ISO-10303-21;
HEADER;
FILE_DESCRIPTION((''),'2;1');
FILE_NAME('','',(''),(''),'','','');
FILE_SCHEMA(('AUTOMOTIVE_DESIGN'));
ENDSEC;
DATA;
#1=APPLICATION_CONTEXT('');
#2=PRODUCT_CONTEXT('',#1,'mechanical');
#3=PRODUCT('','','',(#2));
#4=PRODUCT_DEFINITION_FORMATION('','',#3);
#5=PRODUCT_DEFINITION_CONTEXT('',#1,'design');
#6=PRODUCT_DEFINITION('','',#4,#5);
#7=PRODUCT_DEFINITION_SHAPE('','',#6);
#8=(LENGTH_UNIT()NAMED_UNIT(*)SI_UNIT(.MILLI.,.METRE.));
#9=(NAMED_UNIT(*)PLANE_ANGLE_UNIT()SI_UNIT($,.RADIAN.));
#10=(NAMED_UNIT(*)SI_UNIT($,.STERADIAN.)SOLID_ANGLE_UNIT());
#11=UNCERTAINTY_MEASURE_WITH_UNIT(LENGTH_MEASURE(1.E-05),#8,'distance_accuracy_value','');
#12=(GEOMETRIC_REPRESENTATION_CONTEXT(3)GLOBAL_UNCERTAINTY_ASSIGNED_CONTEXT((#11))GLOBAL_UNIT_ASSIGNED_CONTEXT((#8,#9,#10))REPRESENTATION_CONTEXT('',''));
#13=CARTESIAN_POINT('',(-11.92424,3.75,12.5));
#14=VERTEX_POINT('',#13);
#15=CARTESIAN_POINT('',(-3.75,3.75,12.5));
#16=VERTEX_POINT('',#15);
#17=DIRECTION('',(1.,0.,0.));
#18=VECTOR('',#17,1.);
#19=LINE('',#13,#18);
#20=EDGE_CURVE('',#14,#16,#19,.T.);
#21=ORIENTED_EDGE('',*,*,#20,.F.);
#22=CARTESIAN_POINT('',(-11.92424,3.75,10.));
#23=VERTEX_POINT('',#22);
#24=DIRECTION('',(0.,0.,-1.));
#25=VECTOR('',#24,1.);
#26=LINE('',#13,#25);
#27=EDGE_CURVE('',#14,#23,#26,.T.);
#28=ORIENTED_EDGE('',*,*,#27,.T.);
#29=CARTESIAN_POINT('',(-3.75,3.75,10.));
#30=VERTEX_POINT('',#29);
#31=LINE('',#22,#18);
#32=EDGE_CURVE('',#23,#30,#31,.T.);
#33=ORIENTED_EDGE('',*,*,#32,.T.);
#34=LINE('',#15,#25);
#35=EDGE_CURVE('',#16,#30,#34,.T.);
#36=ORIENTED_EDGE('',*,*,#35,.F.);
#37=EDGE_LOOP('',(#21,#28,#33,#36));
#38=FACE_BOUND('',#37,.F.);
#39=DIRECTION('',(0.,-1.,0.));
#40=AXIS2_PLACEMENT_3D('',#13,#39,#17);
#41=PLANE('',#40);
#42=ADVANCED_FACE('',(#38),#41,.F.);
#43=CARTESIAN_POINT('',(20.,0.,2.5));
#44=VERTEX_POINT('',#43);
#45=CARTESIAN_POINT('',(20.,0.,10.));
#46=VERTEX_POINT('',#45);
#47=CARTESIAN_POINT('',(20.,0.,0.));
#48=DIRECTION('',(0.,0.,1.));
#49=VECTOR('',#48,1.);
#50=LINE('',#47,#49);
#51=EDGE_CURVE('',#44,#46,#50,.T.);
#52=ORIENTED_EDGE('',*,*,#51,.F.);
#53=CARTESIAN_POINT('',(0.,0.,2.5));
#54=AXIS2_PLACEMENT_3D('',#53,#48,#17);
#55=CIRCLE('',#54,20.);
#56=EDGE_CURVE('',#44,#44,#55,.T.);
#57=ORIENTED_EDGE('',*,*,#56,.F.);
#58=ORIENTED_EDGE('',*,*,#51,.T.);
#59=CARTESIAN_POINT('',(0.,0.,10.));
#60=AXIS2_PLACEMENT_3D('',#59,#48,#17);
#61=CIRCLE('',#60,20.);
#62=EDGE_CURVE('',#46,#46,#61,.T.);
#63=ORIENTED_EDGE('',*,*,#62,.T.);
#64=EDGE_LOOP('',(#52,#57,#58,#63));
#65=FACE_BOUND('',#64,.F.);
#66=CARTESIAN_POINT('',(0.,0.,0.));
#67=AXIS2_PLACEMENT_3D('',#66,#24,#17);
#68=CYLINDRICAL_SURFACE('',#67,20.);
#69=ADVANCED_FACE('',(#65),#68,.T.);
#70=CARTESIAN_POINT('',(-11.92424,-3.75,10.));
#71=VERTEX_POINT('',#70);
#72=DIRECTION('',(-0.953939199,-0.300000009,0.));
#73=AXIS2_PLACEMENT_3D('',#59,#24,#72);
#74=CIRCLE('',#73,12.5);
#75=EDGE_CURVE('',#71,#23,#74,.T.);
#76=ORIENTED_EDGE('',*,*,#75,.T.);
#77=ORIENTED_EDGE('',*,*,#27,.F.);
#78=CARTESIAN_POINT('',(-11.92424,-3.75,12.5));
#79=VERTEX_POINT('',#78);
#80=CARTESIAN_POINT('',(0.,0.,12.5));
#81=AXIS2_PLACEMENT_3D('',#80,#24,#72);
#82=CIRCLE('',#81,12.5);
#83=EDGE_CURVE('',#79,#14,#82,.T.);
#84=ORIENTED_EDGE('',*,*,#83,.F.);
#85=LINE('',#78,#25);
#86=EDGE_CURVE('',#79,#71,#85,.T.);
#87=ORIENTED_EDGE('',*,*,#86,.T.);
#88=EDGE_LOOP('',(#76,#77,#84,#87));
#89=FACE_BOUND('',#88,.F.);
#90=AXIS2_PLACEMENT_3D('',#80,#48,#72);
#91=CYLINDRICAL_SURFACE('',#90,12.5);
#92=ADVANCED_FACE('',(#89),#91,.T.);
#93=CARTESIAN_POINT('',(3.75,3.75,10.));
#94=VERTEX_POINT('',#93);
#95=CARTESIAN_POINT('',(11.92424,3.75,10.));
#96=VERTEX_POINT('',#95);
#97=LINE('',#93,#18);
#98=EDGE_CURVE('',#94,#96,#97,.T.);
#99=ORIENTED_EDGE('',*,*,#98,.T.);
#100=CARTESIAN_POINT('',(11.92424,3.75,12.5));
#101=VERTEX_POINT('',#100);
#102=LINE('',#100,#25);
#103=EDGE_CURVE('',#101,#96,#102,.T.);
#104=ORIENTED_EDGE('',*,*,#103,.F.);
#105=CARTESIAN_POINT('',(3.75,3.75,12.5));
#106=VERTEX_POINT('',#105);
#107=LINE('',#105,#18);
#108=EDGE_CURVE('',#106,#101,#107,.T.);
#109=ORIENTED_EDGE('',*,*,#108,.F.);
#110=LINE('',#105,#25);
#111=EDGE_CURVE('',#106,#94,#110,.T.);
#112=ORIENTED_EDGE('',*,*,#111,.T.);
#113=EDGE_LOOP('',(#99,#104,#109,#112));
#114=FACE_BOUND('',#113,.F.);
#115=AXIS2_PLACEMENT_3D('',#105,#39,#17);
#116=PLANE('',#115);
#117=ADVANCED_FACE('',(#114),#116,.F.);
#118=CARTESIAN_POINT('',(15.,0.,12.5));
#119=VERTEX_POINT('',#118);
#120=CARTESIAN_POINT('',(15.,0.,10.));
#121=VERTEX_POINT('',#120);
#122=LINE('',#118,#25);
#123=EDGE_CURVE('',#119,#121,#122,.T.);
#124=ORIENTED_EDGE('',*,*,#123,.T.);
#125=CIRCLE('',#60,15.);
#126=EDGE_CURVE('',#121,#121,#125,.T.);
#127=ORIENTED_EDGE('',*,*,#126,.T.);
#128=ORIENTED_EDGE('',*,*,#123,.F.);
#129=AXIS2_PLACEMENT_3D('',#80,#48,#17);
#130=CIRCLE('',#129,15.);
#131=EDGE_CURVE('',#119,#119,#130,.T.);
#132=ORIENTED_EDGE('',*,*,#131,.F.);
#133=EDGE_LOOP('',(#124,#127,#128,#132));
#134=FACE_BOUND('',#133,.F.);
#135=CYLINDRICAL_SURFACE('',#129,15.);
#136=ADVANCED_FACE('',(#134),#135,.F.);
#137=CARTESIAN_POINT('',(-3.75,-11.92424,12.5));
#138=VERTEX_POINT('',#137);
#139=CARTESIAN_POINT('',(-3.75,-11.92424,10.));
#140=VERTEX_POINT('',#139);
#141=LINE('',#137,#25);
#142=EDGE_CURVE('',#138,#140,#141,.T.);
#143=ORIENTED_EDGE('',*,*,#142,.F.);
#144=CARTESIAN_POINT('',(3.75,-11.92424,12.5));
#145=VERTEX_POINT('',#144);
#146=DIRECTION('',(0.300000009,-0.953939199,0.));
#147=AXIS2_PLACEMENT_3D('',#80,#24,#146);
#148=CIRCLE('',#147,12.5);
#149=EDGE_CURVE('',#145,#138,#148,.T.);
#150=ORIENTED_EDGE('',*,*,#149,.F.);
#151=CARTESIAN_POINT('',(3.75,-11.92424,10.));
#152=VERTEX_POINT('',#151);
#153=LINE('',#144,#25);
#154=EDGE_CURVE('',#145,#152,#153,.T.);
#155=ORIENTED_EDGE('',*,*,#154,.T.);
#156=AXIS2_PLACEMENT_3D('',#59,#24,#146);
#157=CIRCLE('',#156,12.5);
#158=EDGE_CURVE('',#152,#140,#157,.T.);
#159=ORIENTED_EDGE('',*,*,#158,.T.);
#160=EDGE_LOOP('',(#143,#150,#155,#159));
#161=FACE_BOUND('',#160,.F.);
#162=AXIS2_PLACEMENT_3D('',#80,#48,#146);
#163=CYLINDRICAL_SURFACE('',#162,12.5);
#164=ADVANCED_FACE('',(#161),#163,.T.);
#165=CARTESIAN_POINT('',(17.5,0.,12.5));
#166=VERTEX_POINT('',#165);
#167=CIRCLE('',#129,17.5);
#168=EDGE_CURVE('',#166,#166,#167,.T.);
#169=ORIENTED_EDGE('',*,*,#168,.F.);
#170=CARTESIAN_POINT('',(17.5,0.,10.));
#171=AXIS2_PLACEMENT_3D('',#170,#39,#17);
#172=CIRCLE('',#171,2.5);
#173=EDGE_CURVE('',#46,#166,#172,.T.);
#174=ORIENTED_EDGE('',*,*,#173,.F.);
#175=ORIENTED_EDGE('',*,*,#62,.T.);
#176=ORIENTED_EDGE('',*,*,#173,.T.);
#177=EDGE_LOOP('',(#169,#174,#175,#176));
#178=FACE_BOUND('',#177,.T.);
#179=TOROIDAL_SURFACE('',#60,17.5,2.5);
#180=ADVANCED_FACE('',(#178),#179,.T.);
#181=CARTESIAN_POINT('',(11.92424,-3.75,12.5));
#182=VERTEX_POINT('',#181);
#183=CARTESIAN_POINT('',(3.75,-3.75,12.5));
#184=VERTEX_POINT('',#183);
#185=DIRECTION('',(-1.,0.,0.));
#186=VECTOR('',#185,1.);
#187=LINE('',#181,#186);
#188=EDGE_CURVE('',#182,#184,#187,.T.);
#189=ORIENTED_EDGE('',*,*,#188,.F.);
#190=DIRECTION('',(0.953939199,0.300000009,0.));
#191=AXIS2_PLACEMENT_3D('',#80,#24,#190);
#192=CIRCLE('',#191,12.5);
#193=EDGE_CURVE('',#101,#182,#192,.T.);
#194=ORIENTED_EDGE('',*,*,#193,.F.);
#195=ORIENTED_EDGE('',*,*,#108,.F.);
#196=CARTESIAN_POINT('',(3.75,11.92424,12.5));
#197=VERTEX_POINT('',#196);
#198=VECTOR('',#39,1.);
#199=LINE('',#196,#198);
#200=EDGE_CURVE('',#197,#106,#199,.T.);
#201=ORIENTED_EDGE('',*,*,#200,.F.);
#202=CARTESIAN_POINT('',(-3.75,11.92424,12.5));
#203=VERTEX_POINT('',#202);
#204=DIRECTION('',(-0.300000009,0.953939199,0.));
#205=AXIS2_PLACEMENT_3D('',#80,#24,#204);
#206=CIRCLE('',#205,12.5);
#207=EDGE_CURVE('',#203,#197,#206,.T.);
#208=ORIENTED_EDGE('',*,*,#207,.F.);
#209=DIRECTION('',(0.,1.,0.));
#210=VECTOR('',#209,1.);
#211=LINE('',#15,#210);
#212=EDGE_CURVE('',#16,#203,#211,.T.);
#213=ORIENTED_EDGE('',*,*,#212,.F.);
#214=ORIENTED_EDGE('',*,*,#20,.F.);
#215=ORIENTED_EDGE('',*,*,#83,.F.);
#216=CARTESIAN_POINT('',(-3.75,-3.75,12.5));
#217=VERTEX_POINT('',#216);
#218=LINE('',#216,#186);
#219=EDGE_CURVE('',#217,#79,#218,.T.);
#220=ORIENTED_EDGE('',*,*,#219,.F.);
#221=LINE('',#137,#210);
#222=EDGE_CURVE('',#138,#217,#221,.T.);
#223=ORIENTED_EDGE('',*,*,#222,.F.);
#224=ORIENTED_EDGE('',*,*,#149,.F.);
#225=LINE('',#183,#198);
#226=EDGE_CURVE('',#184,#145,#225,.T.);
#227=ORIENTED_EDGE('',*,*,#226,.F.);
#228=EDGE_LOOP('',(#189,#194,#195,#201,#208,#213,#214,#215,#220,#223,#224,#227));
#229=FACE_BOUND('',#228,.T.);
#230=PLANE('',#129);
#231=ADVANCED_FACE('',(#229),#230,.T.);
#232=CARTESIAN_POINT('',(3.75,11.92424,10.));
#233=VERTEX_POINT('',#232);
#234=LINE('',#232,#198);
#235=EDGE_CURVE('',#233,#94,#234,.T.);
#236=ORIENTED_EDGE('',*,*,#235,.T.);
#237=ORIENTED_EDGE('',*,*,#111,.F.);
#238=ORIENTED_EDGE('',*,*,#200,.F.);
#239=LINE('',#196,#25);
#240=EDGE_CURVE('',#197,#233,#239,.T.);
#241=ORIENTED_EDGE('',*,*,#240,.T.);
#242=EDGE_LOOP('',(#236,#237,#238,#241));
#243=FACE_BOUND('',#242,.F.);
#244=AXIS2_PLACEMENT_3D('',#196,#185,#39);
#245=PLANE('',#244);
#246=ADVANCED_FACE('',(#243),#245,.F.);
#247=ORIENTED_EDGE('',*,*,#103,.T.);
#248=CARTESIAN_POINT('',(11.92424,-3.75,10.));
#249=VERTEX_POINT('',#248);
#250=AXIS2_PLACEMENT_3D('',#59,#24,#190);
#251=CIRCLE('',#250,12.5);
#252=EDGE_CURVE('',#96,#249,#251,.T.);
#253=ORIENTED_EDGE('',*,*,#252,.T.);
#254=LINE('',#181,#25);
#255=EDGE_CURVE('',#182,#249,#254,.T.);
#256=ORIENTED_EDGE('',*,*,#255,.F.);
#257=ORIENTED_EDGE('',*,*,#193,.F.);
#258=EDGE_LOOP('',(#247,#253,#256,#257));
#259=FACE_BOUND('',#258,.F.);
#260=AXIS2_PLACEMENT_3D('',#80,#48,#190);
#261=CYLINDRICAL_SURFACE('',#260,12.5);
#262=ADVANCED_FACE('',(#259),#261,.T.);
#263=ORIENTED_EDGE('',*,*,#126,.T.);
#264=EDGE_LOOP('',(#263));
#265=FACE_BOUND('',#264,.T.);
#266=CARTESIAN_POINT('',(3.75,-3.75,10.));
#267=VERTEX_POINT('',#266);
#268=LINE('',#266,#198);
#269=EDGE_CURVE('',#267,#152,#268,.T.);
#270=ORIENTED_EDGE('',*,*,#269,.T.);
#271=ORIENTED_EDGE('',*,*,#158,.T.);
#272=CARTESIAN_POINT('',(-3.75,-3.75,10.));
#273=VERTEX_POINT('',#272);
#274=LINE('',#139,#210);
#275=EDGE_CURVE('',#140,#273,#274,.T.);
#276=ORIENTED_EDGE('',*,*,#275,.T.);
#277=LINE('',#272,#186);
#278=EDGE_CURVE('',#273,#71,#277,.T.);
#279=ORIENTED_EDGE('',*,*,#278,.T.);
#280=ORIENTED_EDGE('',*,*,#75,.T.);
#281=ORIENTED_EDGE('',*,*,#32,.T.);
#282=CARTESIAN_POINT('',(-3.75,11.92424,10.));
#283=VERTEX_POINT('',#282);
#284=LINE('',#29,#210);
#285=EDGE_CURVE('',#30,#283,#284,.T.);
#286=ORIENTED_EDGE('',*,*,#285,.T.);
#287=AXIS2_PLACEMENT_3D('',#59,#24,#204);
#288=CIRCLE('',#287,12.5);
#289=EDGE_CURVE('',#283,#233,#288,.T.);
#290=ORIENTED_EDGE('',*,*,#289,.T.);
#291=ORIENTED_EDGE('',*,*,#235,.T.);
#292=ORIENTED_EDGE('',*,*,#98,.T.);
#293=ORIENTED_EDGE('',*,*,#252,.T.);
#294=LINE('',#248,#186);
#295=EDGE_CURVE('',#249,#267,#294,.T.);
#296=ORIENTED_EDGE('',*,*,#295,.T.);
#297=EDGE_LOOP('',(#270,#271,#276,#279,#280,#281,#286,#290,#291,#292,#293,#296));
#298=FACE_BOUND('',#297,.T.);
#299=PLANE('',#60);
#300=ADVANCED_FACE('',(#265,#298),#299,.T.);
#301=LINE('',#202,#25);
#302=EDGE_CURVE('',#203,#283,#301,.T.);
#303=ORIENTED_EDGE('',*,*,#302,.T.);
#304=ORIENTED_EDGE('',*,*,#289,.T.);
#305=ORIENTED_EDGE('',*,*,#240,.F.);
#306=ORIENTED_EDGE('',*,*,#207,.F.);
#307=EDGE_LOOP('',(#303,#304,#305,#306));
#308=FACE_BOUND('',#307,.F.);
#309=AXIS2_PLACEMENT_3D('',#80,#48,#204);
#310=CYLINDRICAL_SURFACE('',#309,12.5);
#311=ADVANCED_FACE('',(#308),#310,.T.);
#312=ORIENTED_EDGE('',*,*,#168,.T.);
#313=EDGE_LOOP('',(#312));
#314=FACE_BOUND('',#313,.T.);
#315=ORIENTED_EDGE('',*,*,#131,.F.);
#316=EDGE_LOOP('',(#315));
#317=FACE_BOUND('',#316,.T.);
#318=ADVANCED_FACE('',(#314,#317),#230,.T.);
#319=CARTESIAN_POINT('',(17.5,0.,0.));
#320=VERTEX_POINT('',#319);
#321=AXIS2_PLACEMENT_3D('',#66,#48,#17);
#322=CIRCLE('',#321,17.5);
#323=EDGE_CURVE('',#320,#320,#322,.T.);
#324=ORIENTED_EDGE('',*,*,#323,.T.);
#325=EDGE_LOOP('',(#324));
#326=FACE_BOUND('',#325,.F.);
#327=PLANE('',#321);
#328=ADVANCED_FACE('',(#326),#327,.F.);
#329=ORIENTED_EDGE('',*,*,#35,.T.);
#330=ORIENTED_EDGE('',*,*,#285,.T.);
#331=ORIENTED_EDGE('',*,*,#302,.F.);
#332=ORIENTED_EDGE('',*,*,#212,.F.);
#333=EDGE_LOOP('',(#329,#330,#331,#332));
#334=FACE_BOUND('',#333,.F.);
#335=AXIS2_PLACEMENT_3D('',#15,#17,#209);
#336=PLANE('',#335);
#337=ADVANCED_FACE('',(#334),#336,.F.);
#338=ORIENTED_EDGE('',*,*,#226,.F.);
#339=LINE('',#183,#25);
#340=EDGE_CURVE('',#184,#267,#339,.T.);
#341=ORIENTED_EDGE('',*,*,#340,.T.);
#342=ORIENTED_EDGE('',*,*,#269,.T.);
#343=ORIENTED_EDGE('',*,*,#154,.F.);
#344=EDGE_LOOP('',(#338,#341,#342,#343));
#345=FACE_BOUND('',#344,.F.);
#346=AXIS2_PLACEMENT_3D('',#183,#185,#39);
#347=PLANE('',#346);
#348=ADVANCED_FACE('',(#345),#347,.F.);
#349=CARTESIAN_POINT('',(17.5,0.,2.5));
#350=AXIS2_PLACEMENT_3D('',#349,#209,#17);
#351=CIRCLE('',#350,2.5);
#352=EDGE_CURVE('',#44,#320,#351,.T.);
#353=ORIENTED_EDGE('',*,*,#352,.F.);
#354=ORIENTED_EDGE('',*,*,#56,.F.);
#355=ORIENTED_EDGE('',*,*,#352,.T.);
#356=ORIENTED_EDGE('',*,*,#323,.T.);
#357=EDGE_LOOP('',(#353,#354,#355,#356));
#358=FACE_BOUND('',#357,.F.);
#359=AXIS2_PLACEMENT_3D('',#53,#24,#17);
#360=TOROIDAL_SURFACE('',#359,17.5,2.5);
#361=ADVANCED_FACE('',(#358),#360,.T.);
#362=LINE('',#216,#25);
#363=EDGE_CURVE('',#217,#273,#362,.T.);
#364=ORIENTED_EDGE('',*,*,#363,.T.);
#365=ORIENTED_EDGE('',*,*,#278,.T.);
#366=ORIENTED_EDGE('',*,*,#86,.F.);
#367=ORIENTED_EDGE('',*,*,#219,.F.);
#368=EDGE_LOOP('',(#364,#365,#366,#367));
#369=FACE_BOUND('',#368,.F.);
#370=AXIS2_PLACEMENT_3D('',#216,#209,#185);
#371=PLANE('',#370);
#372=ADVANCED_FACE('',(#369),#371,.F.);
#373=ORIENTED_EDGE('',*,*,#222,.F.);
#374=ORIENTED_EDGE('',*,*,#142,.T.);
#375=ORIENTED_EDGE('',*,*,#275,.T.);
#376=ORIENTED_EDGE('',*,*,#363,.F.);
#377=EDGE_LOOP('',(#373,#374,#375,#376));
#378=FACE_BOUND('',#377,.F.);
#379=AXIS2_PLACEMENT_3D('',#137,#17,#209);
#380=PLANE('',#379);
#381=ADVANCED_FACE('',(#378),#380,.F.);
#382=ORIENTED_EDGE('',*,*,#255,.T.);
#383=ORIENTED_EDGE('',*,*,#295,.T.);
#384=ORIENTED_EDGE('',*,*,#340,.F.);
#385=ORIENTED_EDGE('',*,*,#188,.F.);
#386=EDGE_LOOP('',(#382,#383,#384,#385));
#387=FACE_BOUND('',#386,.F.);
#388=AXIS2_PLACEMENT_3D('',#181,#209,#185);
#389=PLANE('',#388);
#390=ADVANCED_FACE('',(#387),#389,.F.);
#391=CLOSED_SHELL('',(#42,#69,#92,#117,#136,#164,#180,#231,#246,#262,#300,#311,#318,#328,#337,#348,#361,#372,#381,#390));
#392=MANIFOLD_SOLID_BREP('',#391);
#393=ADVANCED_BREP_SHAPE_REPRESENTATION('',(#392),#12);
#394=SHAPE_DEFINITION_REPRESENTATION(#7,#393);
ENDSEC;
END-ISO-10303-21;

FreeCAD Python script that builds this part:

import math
import FreeCAD as App
import Part
import Sketcher
from FreeCAD import Vector
Q = App.Units.Quantity


def edges_at(feature, points):
    """Names of the edges that pass closest to the given points."""
    edges = feature.Shape.Edges
    near = lambda p: min(range(len(edges)), key=lambda i: edges[i].distToShape(Part.Vertex(*p))[0])
    return sorted({f"Edge{near(p) + 1}" for p in points})

doc = App.newDocument("Part")
body = doc.addObject("PartDesign::Body", "Body")

sketch1 = body.newObject("Sketcher::SketchObject", "Sketch")
sketch1.AttachmentSupport = (doc.getObject("XY_Plane"), [""])
sketch1.MapMode = "FlatFace"
sketch1.addGeometry(Part.Circle(Vector(0, 0, 0), Vector(0, 0, 1), 20), False)
sketch1.addConstraint(Sketcher.Constraint("Coincident", 0, 3, -1, 1))
sketch1.addConstraint(Sketcher.Constraint("Diameter", 0, Q("40 mm")))
pad1 = body.newObject("PartDesign::Pad", "Pad")
pad1.Profile = sketch1
pad1.Length = 12.5
doc.recompute()

fillet = body.newObject("PartDesign::Fillet", "Fillet")
fillet.Base = (pad1, edges_at(pad1, [(-20, 0, 12.5)]))
fillet.Radius = 2.5
doc.recompute()

fillet2 = body.newObject("PartDesign::Fillet", "Fillet001")
fillet2.Base = (fillet, edges_at(fillet, [(-20, 0, 0)]))
fillet2.Radius = 2.5

sketch2 = body.newObject("Sketcher::SketchObject", "Sketch001")
sketch2.AttachmentSupport = (doc.getObject("XY_Plane"), [""])
sketch2.MapMode = "FlatFace"
sketch2.AttachmentOffset = App.Placement(Vector(0, 0, 12.5), App.Rotation())
sketch2.addGeometry(Part.Circle(Vector(0, 0, 0), Vector(0, 0, 1), 15), False)
sketch2.addGeometry(Part.LineSegment(Vector(-12, 4, 0), Vector(-4, 4, 0)), False)
sketch2.addGeometry(Part.LineSegment(Vector(-4, 4, 0), Vector(-4, 12, 0)), False)
sketch2.addGeometry(Part.ArcOfCircle(Part.Circle(Vector(0, 0, 0), Vector(0, 0, 1), 12), math.radians(73), math.radians(107)), False)
sketch2.addGeometry(Part.LineSegment(Vector(4, 12, 0), Vector(4, 4, 0)), False)
sketch2.addGeometry(Part.LineSegment(Vector(4, 4, 0), Vector(12, 4, 0)), False)
sketch2.addGeometry(Part.ArcOfCircle(Part.Circle(Vector(0, 0, 0), Vector(0, 0, 1), 12), math.radians(-17), math.radians(17)), False)
sketch2.addGeometry(Part.LineSegment(Vector(12, -4, 0), Vector(4, -4, 0)), False)
sketch2.addGeometry(Part.LineSegment(Vector(4, -4, 0), Vector(4, -12, 0)), False)
sketch2.addGeometry(Part.ArcOfCircle(Part.Circle(Vector(0, 0, 0), Vector(0, 0, 1), 12), math.radians(-107), math.radians(-73)), False)
sketch2.addGeometry(Part.LineSegment(Vector(-4, -12, 0), Vector(-4, -4, 0)), False)
sketch2.addGeometry(Part.LineSegment(Vector(-4, -4, 0), Vector(-12, -4, 0)), False)
sketch2.addGeometry(Part.ArcOfCircle(Part.Circle(Vector(0, 0, 0), Vector(0, 0, 1), 12), math.radians(163), math.radians(197)), False)
sketch2.addConstraint(Sketcher.Constraint("Coincident", 1, 2, 2, 1))
sketch2.addConstraint(Sketcher.Constraint("Coincident", 2, 2, 3, 2))
sketch2.addConstraint(Sketcher.Constraint("Coincident", 3, 1, 4, 1))
sketch2.addConstraint(Sketcher.Constraint("Coincident", 4, 2, 5, 1))
sketch2.addConstraint(Sketcher.Constraint("Coincident", 5, 2, 6, 2))
sketch2.addConstraint(Sketcher.Constraint("Coincident", 6, 1, 7, 1))
sketch2.addConstraint(Sketcher.Constraint("Coincident", 7, 2, 8, 1))
sketch2.addConstraint(Sketcher.Constraint("Coincident", 8, 2, 9, 2))
sketch2.addConstraint(Sketcher.Constraint("Coincident", 9, 1, 10, 1))
sketch2.addConstraint(Sketcher.Constraint("Coincident", 10, 2, 11, 1))
sketch2.addConstraint(Sketcher.Constraint("Coincident", 11, 2, 12, 2))
sketch2.addConstraint(Sketcher.Constraint("Coincident", 12, 1, 1, 1))
sketch2.addConstraint(Sketcher.Constraint("Horizontal", 1))
sketch2.addConstraint(Sketcher.Constraint("Vertical", 2))
sketch2.addConstraint(Sketcher.Constraint("Vertical", 4))
sketch2.addConstraint(Sketcher.Constraint("Horizontal", 5))
sketch2.addConstraint(Sketcher.Constraint("Horizontal", 7))
sketch2.addConstraint(Sketcher.Constraint("Vertical", 8))
sketch2.addConstraint(Sketcher.Constraint("Vertical", 10))
sketch2.addConstraint(Sketcher.Constraint("Horizontal", 11))
sketch2.addConstraint(Sketcher.Constraint("Coincident", 0, 3, -1, 1))
sketch2.addConstraint(Sketcher.Constraint("Coincident", 3, 3, -1, 1))
sketch2.addConstraint(Sketcher.Constraint("Coincident", 6, 3, -1, 1))
sketch2.addConstraint(Sketcher.Constraint("Coincident", 9, 3, -1, 1))
sketch2.addConstraint(Sketcher.Constraint("Coincident", 12, 3, -1, 1))
sketch2.addConstraint(Sketcher.Constraint("Equal", 3, 6))
sketch2.addConstraint(Sketcher.Constraint("Equal", 6, 9))
sketch2.addConstraint(Sketcher.Constraint("Equal", 9, 12))
sketch2.addConstraint(Sketcher.Constraint("Symmetric", 1, 2, 7, 2, -1, 1))
sketch2.addConstraint(Sketcher.Constraint("Symmetric", 4, 2, 10, 2, -1, 1))
sketch2.addConstraint(Sketcher.Constraint("Symmetric", 1, 2, 4, 2, -2))
sketch2.addConstraint(Sketcher.Constraint("Equal", 11, 2))
sketch2.addConstraint(Sketcher.Constraint("Diameter", 0, Q("30 mm")))
sketch2.addConstraint(Sketcher.Constraint("Radius", 3, Q("12.5 mm")))
sketch2.addConstraint(Sketcher.Constraint("DistanceX", 2, 2, 3, 1, Q("7.5 mm")))
pocket1 = body.newObject("PartDesign::Pocket", "Pocket")
pocket1.Profile = sketch2
pocket1.Length = 2.5

doc.recompute()
